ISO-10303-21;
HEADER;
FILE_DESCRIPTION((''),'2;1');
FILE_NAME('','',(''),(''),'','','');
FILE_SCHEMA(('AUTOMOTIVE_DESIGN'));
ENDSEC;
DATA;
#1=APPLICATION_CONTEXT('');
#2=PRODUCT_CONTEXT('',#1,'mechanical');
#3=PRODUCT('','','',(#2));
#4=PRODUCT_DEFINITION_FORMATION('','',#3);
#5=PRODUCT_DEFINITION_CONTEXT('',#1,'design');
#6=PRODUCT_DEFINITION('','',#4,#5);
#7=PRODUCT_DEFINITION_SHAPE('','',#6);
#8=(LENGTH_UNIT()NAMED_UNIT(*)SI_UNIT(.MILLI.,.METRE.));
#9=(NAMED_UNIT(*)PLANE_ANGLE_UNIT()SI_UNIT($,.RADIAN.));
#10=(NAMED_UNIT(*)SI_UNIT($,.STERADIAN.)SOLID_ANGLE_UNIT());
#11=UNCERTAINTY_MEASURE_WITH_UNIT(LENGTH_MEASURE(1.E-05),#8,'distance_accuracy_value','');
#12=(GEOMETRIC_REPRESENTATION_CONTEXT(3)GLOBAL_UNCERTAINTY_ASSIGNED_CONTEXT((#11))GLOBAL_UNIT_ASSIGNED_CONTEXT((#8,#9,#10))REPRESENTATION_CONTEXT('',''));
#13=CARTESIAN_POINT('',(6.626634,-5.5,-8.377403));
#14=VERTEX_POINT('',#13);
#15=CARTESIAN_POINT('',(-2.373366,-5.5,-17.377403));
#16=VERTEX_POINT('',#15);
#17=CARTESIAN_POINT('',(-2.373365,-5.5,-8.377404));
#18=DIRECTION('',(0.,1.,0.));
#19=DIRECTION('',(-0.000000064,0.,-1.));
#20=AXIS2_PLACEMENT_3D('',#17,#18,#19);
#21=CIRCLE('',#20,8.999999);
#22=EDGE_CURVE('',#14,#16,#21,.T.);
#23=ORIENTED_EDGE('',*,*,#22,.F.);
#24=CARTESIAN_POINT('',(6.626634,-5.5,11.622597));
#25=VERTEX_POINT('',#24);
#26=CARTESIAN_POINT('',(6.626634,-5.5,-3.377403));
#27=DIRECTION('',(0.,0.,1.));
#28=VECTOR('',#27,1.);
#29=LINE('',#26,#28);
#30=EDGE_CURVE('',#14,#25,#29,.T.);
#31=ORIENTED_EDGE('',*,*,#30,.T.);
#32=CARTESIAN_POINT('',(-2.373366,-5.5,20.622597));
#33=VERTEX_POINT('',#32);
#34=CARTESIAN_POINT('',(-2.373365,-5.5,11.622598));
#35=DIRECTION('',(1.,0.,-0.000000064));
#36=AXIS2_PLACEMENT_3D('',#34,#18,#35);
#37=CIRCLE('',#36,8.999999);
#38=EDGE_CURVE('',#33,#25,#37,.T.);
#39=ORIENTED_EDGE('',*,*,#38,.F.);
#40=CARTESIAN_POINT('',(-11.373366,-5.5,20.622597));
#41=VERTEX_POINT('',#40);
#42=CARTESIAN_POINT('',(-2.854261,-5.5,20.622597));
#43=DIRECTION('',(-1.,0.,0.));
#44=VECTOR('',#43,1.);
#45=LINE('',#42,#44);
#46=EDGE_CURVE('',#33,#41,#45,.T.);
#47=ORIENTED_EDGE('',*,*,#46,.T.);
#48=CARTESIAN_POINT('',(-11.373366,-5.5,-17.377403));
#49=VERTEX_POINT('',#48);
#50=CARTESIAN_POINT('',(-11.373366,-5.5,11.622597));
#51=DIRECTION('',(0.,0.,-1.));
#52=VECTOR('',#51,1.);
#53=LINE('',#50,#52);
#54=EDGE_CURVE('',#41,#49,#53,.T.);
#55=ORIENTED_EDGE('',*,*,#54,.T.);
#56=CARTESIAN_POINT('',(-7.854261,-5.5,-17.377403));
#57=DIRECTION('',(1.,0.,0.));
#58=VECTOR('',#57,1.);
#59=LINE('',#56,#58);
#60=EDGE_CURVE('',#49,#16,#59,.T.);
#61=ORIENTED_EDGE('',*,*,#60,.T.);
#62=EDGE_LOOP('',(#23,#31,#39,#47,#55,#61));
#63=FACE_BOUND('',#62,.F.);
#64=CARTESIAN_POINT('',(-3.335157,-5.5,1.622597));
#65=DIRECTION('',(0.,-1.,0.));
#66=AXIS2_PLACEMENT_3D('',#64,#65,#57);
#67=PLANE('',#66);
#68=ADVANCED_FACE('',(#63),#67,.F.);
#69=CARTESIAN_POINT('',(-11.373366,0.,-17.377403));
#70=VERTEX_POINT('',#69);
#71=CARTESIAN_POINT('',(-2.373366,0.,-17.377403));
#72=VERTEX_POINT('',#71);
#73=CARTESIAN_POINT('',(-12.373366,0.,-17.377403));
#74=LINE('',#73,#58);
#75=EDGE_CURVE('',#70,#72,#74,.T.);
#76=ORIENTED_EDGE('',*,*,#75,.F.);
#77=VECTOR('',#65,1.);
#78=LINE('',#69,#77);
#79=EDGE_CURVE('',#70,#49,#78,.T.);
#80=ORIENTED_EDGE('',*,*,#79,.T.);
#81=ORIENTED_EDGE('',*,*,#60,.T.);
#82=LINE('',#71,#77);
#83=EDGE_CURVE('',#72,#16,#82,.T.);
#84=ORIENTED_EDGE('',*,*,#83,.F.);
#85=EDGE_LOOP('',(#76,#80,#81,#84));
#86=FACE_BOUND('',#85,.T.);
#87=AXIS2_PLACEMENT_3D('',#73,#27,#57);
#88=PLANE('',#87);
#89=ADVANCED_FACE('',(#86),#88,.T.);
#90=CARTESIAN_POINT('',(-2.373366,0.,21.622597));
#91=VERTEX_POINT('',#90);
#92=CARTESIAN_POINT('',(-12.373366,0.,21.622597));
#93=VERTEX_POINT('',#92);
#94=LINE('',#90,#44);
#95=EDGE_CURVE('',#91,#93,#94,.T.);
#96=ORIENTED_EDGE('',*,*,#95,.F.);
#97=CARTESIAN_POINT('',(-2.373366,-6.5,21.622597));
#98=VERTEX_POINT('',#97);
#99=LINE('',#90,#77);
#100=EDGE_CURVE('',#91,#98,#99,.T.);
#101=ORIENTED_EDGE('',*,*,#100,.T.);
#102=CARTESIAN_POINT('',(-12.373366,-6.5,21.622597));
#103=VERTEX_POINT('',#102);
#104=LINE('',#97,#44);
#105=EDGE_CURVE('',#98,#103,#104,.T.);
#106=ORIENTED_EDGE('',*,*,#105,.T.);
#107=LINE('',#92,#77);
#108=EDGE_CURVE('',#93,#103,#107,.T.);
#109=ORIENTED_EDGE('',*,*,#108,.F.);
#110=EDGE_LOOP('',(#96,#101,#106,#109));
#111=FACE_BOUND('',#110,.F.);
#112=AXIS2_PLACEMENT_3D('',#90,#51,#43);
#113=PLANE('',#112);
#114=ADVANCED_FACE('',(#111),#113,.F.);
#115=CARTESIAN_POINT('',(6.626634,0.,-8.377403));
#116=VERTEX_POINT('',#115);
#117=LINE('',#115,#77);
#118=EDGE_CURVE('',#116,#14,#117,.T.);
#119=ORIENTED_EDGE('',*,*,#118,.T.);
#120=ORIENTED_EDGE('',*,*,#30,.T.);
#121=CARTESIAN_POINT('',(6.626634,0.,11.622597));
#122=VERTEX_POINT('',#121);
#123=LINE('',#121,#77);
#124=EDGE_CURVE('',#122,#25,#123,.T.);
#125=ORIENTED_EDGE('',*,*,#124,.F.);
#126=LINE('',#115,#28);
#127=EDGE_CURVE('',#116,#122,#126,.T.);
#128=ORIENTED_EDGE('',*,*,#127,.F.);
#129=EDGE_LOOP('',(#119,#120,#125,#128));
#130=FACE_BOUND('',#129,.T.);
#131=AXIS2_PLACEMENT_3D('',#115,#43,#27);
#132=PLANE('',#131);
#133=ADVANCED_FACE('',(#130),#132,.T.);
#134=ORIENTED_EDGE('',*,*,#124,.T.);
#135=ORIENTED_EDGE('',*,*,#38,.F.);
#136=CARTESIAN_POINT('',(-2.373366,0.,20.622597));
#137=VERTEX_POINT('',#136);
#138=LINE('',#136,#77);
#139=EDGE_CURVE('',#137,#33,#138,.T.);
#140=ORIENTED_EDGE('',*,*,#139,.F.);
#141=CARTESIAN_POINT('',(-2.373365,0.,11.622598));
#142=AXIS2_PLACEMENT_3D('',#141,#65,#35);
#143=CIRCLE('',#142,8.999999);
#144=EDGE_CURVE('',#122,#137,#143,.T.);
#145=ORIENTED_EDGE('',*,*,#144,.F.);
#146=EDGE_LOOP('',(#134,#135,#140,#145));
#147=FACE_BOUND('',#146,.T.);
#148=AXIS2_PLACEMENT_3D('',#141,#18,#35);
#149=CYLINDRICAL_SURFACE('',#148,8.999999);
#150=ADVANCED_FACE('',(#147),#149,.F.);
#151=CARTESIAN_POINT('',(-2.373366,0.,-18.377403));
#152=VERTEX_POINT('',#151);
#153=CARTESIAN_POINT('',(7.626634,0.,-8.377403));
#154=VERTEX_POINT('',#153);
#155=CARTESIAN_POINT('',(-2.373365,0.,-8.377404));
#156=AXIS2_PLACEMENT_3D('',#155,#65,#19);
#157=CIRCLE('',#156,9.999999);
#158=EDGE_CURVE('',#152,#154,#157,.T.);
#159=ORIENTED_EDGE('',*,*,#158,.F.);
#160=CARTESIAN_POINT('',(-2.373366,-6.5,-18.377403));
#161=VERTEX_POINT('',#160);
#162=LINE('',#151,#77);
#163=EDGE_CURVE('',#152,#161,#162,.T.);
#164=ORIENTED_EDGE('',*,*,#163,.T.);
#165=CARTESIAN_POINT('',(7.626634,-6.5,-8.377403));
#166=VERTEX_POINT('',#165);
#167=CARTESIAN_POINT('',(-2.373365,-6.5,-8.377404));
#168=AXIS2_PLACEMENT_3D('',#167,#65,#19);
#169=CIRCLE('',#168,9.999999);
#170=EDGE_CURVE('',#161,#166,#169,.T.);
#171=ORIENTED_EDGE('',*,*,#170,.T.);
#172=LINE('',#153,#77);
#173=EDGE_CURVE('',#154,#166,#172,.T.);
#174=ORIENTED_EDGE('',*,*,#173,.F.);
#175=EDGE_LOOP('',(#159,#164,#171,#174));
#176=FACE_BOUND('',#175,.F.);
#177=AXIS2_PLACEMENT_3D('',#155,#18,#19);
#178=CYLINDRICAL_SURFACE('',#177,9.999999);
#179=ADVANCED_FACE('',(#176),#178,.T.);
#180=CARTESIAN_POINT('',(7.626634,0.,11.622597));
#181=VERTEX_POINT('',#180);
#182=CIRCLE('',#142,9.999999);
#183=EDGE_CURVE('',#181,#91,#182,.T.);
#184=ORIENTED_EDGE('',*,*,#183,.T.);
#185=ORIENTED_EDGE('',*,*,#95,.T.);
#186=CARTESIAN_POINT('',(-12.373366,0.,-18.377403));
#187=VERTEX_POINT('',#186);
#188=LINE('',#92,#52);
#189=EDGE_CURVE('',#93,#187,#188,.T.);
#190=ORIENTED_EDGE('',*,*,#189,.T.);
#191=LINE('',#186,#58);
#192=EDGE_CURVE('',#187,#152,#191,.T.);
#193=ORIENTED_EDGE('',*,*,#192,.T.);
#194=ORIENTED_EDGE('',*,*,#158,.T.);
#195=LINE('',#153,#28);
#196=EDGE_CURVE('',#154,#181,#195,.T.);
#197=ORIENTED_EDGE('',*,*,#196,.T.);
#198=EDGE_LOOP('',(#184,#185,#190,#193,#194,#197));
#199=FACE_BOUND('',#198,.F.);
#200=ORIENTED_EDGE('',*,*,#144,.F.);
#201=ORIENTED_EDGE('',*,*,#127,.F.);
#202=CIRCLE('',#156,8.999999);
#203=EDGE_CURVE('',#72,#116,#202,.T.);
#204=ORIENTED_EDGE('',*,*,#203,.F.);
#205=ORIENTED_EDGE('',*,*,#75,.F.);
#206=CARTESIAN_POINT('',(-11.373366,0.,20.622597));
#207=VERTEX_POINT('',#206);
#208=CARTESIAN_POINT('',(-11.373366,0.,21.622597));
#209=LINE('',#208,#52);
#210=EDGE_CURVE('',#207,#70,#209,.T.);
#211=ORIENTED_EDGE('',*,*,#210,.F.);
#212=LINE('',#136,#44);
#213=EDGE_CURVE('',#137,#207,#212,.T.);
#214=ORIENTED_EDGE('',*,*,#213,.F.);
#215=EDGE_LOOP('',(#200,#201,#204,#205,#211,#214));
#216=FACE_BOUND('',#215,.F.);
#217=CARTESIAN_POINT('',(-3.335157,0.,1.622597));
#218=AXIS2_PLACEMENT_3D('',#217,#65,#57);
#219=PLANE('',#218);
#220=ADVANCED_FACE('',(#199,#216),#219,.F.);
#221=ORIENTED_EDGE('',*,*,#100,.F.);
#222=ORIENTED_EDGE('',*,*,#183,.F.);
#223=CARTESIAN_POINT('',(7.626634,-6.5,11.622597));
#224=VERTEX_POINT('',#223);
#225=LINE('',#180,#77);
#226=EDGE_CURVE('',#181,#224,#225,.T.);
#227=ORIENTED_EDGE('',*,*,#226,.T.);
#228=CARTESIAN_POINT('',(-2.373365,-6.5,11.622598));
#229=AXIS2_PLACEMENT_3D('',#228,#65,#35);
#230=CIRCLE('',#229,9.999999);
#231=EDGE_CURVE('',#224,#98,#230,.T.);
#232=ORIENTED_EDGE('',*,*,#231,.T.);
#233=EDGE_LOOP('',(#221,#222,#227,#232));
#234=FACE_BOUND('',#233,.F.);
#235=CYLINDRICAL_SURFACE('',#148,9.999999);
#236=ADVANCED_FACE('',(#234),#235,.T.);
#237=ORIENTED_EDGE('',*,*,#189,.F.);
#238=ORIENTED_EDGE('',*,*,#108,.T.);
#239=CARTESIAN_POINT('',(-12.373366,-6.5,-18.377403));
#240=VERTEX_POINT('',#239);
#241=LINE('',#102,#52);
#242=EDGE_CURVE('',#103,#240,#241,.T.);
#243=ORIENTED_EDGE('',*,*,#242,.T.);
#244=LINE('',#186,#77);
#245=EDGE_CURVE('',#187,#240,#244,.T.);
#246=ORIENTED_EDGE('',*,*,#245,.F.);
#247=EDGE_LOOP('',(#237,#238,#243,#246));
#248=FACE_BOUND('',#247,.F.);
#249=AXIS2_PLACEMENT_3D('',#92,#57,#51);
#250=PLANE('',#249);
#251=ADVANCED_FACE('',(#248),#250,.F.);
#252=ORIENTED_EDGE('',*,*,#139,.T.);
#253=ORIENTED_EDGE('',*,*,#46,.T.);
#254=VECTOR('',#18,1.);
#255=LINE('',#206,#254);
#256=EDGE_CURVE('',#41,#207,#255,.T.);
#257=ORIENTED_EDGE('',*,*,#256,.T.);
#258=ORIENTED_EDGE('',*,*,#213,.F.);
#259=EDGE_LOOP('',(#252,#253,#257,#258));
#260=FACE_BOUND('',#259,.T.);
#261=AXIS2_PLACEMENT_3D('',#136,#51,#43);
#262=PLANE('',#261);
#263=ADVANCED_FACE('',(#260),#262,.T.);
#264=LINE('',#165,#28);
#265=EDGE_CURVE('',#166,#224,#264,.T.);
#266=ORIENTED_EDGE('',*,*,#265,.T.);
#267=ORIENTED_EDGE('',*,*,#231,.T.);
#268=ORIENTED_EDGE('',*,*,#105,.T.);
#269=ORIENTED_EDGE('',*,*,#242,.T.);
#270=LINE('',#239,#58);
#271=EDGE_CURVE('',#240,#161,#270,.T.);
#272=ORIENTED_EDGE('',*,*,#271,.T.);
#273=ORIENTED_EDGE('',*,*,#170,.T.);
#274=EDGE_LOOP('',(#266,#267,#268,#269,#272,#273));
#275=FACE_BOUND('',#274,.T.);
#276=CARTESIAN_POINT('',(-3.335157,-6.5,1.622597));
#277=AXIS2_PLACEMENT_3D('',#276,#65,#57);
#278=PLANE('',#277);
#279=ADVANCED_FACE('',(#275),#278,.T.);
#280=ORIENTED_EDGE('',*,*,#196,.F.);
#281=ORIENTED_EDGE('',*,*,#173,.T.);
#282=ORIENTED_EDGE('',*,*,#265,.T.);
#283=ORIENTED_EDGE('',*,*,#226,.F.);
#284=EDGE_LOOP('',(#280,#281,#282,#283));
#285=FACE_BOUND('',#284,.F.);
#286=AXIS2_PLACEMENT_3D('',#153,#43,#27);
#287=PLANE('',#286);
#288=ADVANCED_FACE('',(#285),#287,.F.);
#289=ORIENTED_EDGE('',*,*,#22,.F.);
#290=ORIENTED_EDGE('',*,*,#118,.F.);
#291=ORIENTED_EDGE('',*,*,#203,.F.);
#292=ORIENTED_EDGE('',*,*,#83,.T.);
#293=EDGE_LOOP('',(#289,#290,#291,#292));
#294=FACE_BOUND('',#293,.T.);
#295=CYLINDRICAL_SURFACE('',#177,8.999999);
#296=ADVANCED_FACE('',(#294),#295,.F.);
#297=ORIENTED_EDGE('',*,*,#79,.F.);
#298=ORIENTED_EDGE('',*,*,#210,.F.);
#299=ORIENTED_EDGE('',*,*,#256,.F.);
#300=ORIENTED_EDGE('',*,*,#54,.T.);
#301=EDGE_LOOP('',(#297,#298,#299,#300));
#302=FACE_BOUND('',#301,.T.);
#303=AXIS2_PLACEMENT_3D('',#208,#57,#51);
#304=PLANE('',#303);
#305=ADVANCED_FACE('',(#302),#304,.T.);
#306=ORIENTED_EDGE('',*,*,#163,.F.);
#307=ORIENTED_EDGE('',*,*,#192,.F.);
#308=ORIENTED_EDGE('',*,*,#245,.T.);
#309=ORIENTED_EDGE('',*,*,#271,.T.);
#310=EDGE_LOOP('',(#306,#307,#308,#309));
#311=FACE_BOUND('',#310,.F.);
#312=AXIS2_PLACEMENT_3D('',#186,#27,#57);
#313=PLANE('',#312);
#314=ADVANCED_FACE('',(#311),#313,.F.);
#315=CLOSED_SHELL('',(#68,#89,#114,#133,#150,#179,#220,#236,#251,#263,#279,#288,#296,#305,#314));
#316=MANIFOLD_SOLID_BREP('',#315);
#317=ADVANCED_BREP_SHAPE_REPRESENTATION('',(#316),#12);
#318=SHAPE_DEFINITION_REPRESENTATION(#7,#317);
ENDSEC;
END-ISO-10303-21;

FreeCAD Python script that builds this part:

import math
import FreeCAD as App
import Part
import Sketcher


def faces_at(feature, points):
    """Names of the faces that lie closest to the given points."""
    faces = feature.Shape.Faces
    near = lambda p: min(range(len(faces)), key=lambda i: faces[i].distToShape(Part.Vertex(*p))[0])
    return sorted({f"Face{near(p) + 1}" for p in points})

doc = App.newDocument("Part")
body = doc.addObject("PartDesign::Body", "Body")

sketch1 = doc.addObject("Sketcher::SketchObject", "Sketch")
body.addObject(sketch1)
sketch1.AttachmentSupport = (doc.XZ_Plane, [""])
sketch1.MapMode = "FlatFace"
sketch1.addGeometry(Part.LineSegment(App.Vector(-12.373366, 21.622597, 0), App.Vector(-12.373366, -18.377403, 0)), False)
sketch1.addGeometry(Part.LineSegment(App.Vector(-12.373366, -18.377403, 0), App.Vector(-2.373366, -18.377403, 0)), False)
sketch1.addGeometry(Part.ArcOfCircle(Part.Circle(App.Vector(-2.373365, -8.377404, 0), App.Vector(0, 0, 1), 9.999999), math.radians(-90.000004), math.radians(0.000004)), False)
sketch1.addGeometry(Part.LineSegment(App.Vector(7.626634, -8.377403, 0), App.Vector(7.626634, 11.622597, 0)), False)
sketch1.addGeometry(Part.ArcOfCircle(Part.Circle(App.Vector(-2.373365, 11.622598, 0), App.Vector(0, 0, 1), 9.999999), math.radians(-0.000004), math.radians(90.000004)), False)
sketch1.addGeometry(Part.LineSegment(App.Vector(-2.373366, 21.622597, 0), App.Vector(-12.373366, 21.622597, 0)), False)
sketch1.addConstraint(Sketcher.Constraint("Coincident", 0, 2, 1, 1))
sketch1.addConstraint(Sketcher.Constraint("Tangent", 1, 2, 2, 1))
sketch1.addConstraint(Sketcher.Constraint("Tangent", 2, 2, 3, 1))
sketch1.addConstraint(Sketcher.Constraint("Tangent", 3, 2, 4, 1))
sketch1.addConstraint(Sketcher.Constraint("Tangent", 4, 2, 5, 1))
sketch1.addConstraint(Sketcher.Constraint("Coincident", 5, 2, 0, 1))
sketch1.addConstraint(Sketcher.Constraint("Vertical", 0))
sketch1.addConstraint(Sketcher.Constraint("Horizontal", 1))
sketch1.addConstraint(Sketcher.Constraint("Vertical", 3))
sketch1.addConstraint(Sketcher.Constraint("Horizontal", 5))
sketch1.addConstraint(Sketcher.Constraint("Equal", 2, 4))
sketch1.addConstraint(Sketcher.Constraint("Radius", 2, 9.999999))
sketch1.addConstraint(Sketcher.Constraint("DistanceX", 1, 1, 1, 2, 10.0))
sketch1.addConstraint(Sketcher.Constraint("DistanceY", 0, 2, 0, 1, 40.0))
sketch1.addConstraint(Sketcher.Constraint("DistanceX", 2, 3, -1, 1, 2.373365))
sketch1.addConstraint(Sketcher.Constraint("DistanceY", 2, 3, -1, 1, 8.377404))
pad1 = doc.addObject("PartDesign::Pad", "Pad")
body.addObject(pad1)
pad1.Profile = sketch1
pad1.Length = 6.5
doc.recompute()

thickness = doc.addObject("PartDesign::Thickness", "Thickness")
body.addObject(thickness)
thickness.Base = (pad1, faces_at(pad1, [(-2.373, 0, 1.623)]))
thickness.Value = 1
thickness.Reversed = True
thickness.Join = "Arc"

doc.recompute()
